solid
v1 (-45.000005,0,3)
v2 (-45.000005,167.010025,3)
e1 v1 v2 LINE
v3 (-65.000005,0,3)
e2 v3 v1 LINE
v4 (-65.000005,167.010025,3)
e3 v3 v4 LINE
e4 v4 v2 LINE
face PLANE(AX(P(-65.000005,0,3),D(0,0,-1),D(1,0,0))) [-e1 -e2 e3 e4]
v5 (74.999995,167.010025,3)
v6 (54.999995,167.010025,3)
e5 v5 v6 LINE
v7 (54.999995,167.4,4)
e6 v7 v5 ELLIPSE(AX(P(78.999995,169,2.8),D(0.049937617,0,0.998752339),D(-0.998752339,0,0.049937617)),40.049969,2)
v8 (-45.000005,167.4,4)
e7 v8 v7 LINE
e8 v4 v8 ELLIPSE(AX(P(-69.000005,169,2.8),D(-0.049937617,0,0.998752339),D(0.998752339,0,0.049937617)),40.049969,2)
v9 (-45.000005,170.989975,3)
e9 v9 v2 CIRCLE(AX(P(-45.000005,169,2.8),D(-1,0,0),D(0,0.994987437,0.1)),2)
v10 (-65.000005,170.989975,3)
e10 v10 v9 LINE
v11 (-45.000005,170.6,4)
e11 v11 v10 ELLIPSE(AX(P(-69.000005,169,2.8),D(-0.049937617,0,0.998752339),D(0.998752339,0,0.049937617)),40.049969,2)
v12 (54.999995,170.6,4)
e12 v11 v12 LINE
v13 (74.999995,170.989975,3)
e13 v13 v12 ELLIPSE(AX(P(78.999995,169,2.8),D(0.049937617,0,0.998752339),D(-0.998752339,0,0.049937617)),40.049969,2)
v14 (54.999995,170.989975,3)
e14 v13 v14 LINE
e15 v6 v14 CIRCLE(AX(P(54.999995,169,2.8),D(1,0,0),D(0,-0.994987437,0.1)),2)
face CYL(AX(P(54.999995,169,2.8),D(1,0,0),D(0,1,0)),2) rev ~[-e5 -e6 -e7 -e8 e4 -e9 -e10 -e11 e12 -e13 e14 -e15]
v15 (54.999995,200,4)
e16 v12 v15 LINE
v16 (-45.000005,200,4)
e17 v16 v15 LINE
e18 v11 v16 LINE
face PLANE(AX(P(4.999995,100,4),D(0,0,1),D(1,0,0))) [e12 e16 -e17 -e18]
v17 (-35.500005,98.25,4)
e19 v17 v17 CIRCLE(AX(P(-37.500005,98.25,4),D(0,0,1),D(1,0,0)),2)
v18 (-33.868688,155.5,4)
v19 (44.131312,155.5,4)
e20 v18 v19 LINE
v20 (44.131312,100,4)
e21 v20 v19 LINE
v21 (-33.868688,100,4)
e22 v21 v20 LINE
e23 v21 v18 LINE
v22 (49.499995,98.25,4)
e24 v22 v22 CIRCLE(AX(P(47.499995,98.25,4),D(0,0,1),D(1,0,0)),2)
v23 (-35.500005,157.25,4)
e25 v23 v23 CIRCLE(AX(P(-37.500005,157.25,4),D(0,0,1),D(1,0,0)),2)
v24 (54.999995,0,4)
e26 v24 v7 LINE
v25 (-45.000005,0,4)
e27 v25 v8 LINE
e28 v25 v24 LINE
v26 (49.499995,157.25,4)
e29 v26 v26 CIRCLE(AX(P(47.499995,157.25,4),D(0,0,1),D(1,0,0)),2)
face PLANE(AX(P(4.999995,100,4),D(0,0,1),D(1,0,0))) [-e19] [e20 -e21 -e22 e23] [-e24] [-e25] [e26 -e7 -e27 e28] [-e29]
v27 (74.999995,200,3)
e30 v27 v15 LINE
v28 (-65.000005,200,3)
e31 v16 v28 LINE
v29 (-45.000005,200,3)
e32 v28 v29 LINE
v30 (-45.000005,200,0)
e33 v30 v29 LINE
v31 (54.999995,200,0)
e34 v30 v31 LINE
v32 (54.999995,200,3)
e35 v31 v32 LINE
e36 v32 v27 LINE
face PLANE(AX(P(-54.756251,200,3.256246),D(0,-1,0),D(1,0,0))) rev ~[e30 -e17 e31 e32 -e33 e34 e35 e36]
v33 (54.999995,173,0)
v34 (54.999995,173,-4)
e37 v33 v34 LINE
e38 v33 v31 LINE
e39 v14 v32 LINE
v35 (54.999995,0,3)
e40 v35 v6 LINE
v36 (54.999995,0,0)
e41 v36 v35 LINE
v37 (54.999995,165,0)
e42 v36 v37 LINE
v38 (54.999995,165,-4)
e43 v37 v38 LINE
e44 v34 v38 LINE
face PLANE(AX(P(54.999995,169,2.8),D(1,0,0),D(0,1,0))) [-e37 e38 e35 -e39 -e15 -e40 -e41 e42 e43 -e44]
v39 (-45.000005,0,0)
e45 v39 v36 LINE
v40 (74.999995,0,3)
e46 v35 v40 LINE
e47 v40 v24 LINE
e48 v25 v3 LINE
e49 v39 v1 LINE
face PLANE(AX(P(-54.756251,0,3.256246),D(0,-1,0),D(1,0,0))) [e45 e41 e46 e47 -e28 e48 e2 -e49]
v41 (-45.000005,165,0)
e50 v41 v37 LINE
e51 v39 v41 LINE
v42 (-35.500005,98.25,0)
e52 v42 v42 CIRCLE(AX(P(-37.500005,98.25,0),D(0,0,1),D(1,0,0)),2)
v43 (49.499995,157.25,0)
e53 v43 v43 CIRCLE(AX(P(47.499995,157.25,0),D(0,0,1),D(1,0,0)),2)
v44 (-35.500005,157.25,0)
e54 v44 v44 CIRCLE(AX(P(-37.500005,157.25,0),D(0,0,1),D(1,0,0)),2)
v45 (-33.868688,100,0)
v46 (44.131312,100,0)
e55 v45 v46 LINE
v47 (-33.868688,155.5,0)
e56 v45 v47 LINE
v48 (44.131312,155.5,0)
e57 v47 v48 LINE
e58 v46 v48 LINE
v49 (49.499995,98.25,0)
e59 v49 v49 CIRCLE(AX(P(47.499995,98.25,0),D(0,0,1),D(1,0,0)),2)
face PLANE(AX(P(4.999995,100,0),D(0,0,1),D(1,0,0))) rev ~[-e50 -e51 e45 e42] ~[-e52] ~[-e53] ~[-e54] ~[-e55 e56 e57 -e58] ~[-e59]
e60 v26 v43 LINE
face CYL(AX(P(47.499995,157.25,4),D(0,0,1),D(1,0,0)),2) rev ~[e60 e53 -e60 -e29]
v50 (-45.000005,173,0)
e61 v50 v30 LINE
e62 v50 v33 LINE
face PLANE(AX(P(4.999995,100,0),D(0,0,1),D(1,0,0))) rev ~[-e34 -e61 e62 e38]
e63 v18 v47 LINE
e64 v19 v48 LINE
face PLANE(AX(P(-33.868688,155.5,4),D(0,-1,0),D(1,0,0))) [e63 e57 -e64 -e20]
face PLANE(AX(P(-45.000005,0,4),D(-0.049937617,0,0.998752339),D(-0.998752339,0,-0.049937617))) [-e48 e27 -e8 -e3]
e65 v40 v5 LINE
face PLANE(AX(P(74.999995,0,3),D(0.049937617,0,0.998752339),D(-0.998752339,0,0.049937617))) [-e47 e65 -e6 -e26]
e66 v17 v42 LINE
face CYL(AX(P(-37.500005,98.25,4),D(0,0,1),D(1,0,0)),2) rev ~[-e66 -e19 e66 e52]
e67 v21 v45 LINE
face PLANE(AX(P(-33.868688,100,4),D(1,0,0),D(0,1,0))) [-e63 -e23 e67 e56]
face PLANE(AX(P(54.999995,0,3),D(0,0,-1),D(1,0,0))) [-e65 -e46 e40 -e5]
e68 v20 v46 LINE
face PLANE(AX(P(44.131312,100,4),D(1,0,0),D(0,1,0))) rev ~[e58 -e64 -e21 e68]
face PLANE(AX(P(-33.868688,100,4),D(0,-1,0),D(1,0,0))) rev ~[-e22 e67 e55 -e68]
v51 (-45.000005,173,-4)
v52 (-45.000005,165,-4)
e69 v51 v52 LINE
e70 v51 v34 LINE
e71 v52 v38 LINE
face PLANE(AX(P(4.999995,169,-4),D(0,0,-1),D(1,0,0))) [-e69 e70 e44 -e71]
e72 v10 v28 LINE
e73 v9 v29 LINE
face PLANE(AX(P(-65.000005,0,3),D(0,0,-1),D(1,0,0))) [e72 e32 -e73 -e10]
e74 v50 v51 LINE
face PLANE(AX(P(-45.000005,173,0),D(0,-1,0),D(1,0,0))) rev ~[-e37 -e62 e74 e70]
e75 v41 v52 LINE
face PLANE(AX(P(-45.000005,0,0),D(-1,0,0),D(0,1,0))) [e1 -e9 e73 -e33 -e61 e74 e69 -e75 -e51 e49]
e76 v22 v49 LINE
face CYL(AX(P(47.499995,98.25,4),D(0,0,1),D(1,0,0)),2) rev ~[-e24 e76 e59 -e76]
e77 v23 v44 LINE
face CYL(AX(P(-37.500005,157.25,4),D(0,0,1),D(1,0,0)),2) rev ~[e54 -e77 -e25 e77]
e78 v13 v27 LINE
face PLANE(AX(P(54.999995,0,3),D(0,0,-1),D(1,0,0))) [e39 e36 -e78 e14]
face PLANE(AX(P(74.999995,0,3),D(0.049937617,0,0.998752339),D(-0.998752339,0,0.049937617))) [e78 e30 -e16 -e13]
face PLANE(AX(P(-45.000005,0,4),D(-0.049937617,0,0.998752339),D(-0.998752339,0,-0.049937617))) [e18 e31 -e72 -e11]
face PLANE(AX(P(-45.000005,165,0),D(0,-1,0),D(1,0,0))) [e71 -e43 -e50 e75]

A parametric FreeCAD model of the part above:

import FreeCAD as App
import Part
import Sketcher

V = App.Vector
Q = App.Units.Quantity


def add_polygon(sketch, points):
    """Adds a closed chain of lines whose ends are joined by coincident constraints."""
    first, n = sketch.GeometryCount, len(points)
    for a, b in zip(points, points[1:] + points[:1]):
        sketch.addGeometry(Part.LineSegment(App.Vector(*a, 0), App.Vector(*b, 0)), False)
    for i in range(n):
        sketch.addConstraint(Sketcher.Constraint("Coincident", first + i, 2, first + (i + 1) % n, 1))

doc = App.newDocument("Part")
body = doc.addObject("PartDesign::Body", "Body")

# Sketch on XY plane
sketch1 = doc.addObject("Sketcher::SketchObject", "Sketch")
body.addObject(sketch1)
sketch1.AttachmentSupport = (doc.XY_Plane, [""])
sketch1.MapMode = "FlatFace"
add_polygon(sketch1, [(-45.000005, 200), (-45.000005, 0), (54.999995, 0), (54.999995, 200)])  # lines 0-3
sketch1.addConstraint([
    Sketcher.Constraint("Vertical", 0),
    Sketcher.Constraint("Horizontal", 1),
    Sketcher.Constraint("Vertical", 2),
    Sketcher.Constraint("Horizontal", 3),
    Sketcher.Constraint("PointOnObject", 0, 2, -1),
    Sketcher.Constraint("DistanceX", 1, 1, 1, 2, Q("100 mm")),
    Sketcher.Constraint("DistanceY", 0, 2, 0, 1, Q("200 mm")),
    Sketcher.Constraint("DistanceX", 0, 2, -1, 1, Q("45.000005 mm")),
])
pad1 = doc.addObject("PartDesign::Pad", "Pad")
body.addObject(pad1)
pad1.Profile = sketch1
pad1.Length = 4

# Sketch on XY plane
sketch2 = doc.addObject("Sketcher::SketchObject", "Sketch001")
body.addObject(sketch2)
sketch2.AttachmentSupport = (doc.XY_Plane, [""])
sketch2.MapMode = "FlatFace"
sketch2.AttachmentOffset = App.Placement(V(0, 0, 4), App.Rotation())
add_polygon(sketch2, [(-33.868688, 155.5), (-33.868688, 100), (44.131312, 100), (44.131312, 155.5)])  # lines 0-3
sketch2.addGeometry(Part.Circle(V(-37.500005, 98.25, 0), V(0, 0, 1), 2), False)  # 4
sketch2.addGeometry(Part.Circle(V(-37.500005, 157.25, 0), V(0, 0, 1), 2), False)  # 5
sketch2.addGeometry(Part.Circle(V(47.499995, 157.25, 0), V(0, 0, 1), 2), False)  # 6
sketch2.addGeometry(Part.Circle(V(47.499995, 98.25, 0), V(0, 0, 1), 2), False)  # 7
sketch2.addConstraint([
    Sketcher.Constraint("Vertical", 0),
    Sketcher.Constraint("Horizontal", 1),
    Sketcher.Constraint("Vertical", 2),
    Sketcher.Constraint("Horizontal", 3),
    Sketcher.Constraint("Equal", 4, 5),
    Sketcher.Constraint("Equal", 5, 6),
    Sketcher.Constraint("Equal", 6, 7),
    Sketcher.Constraint("Horizontal", 5, 3, 6, 3),
    Sketcher.Constraint("Horizontal", 4, 3, 7, 3),
    Sketcher.Constraint("Vertical", 4, 3, 5, 3),
    Sketcher.Constraint("Vertical", 6, 3, 7, 3),
    Sketcher.Constraint("Diameter", 4, Q("4 mm")),
    Sketcher.Constraint("DistanceX", 1, 1, 1, 2, Q("78 mm")),
    Sketcher.Constraint("DistanceY", 0, 2, 0, 1, Q("55.5 mm")),
    Sketcher.Constraint("DistanceY", -1, 1, 0, 2, Q("100 mm")),
    Sketcher.Constraint("DistanceY", 4, 3, 5, 3, Q("59 mm")),
    Sketcher.Constraint("DistanceX", 5, 3, 6, 3, Q("85 mm")),
    Sketcher.Constraint("DistanceY", -1, 1, 4, 3, Q("98.25 mm")),
    Sketcher.Constraint("DistanceX", 4, 3, -1, 1, Q("37.500005 mm")),
    Sketcher.Constraint("DistanceX", 0, 2, -1, 1, Q("33.868688 mm")),
])
pocket1 = doc.addObject("PartDesign::Pocket", "Pocket")
body.addObject(pocket1)
pocket1.Profile = sketch2
pocket1.Length = 25

# Sketch on XZ plane
sketch3 = doc.addObject("Sketcher::SketchObject", "Sketch002")
body.addObject(sketch3)
sketch3.AttachmentSupport = (doc.XZ_Plane, [""])
sketch3.MapMode = "FlatFace"
add_polygon(sketch3, [(-45.000005, 3), (-45.000005, 4), (-65.000005, 3)])  # lines 0-2
add_polygon(sketch3, [(74.999995, 3), (54.999995, 4), (54.999995, 3)])  # lines 3-5
sketch3.addConstraint([
    Sketcher.Constraint("Vertical", 0),
    Sketcher.Constraint("Horizontal", 2),
    Sketcher.Constraint("Vertical", 4),
    Sketcher.Constraint("Horizontal", 5),
    Sketcher.Constraint("Horizontal", 0, 2, 3, 2),
    Sketcher.Constraint("Horizontal", 2, 2, 4, 2),
    Sketcher.Constraint("Equal", 2, 5),
    Sketcher.Constraint("DistanceX", 2, 1, 2, 2, Q("20 mm")),
    Sketcher.Constraint("DistanceY", 0, 1, 0, 2, Q("1 mm")),
    Sketcher.Constraint("DistanceY", -1, 1, 0, 2, Q("4 mm")),
    Sketcher.Constraint("DistanceX", 0, 2, 3, 2, Q("100 mm")),
    Sketcher.Constraint("DistanceX", 0, 2, -1, 1, Q("45.000005 mm")),
])
pad2 = doc.addObject("PartDesign::Pad", "Pad001")
body.addObject(pad2)
pad2.Profile = sketch3
pad2.Length = 200
pad2.Reversed = True

# Sketch on XY plane
sketch4 = doc.addObject("Sketcher::SketchObject", "Sketch003")
body.addObject(sketch4)
sketch4.AttachmentSupport = (doc.XY_Plane, [""])
sketch4.MapMode = "FlatFace"
add_polygon(sketch4, [(-45.000005, 165), (-45.000005, 173), (54.999995, 173), (54.999995, 165)])  # lines 0-3
sketch4.addConstraint([
    Sketcher.Constraint("Vertical", 0),
    Sketcher.Constraint("Horizontal", 1),
    Sketcher.Constraint("Vertical", 2),
    Sketcher.Constraint("Horizontal", 3),
    Sketcher.Constraint("DistanceX", 1, 1, 1, 2, Q("100 mm")),
    Sketcher.Constraint("DistanceY", 0, 1, 0, 2, Q("8 mm")),
    Sketcher.Constraint("DistanceY", -1, 1, 0, 2, Q("173 mm")),
    Sketcher.Constraint("DistanceX", 0, 2, -1, 1, Q("45.000005 mm")),
])
pad3 = doc.addObject("PartDesign::Pad", "Pad002")
body.addObject(pad3)
pad3.Profile = sketch4
pad3.Length = 4
pad3.Reversed = True

# Sketch on YZ plane
sketch5 = doc.addObject("Sketcher::SketchObject", "Sketch004")
body.addObject(sketch5)
sketch5.AttachmentSupport = (doc.YZ_Plane, [""])
sketch5.MapMode = "FlatFace"
sketch5.AttachmentOffset = App.Placement(V(0, 0, 54.999995), App.Rotation())
sketch5.addGeometry(Part.Circle(V(169, 2.8, 0), V(0, 0, 1), 2), False)
sketch5.addConstraint([
    Sketcher.Constraint("Diameter", 0, Q("4 mm")),
    Sketcher.Constraint("DistanceX", -1, 1, 0, 3, Q("169 mm")),
    Sketcher.Constraint("DistanceY", -1, 1, 0, 3, Q("2.8 mm")),
])
pocket2 = doc.addObject("PartDesign::Pocket", "Pocket001")
body.addObject(pocket2)
pocket2.Profile = sketch5
pocket2.Type = "ThroughAll"
pocket2.Midplane = True

doc.recompute()
